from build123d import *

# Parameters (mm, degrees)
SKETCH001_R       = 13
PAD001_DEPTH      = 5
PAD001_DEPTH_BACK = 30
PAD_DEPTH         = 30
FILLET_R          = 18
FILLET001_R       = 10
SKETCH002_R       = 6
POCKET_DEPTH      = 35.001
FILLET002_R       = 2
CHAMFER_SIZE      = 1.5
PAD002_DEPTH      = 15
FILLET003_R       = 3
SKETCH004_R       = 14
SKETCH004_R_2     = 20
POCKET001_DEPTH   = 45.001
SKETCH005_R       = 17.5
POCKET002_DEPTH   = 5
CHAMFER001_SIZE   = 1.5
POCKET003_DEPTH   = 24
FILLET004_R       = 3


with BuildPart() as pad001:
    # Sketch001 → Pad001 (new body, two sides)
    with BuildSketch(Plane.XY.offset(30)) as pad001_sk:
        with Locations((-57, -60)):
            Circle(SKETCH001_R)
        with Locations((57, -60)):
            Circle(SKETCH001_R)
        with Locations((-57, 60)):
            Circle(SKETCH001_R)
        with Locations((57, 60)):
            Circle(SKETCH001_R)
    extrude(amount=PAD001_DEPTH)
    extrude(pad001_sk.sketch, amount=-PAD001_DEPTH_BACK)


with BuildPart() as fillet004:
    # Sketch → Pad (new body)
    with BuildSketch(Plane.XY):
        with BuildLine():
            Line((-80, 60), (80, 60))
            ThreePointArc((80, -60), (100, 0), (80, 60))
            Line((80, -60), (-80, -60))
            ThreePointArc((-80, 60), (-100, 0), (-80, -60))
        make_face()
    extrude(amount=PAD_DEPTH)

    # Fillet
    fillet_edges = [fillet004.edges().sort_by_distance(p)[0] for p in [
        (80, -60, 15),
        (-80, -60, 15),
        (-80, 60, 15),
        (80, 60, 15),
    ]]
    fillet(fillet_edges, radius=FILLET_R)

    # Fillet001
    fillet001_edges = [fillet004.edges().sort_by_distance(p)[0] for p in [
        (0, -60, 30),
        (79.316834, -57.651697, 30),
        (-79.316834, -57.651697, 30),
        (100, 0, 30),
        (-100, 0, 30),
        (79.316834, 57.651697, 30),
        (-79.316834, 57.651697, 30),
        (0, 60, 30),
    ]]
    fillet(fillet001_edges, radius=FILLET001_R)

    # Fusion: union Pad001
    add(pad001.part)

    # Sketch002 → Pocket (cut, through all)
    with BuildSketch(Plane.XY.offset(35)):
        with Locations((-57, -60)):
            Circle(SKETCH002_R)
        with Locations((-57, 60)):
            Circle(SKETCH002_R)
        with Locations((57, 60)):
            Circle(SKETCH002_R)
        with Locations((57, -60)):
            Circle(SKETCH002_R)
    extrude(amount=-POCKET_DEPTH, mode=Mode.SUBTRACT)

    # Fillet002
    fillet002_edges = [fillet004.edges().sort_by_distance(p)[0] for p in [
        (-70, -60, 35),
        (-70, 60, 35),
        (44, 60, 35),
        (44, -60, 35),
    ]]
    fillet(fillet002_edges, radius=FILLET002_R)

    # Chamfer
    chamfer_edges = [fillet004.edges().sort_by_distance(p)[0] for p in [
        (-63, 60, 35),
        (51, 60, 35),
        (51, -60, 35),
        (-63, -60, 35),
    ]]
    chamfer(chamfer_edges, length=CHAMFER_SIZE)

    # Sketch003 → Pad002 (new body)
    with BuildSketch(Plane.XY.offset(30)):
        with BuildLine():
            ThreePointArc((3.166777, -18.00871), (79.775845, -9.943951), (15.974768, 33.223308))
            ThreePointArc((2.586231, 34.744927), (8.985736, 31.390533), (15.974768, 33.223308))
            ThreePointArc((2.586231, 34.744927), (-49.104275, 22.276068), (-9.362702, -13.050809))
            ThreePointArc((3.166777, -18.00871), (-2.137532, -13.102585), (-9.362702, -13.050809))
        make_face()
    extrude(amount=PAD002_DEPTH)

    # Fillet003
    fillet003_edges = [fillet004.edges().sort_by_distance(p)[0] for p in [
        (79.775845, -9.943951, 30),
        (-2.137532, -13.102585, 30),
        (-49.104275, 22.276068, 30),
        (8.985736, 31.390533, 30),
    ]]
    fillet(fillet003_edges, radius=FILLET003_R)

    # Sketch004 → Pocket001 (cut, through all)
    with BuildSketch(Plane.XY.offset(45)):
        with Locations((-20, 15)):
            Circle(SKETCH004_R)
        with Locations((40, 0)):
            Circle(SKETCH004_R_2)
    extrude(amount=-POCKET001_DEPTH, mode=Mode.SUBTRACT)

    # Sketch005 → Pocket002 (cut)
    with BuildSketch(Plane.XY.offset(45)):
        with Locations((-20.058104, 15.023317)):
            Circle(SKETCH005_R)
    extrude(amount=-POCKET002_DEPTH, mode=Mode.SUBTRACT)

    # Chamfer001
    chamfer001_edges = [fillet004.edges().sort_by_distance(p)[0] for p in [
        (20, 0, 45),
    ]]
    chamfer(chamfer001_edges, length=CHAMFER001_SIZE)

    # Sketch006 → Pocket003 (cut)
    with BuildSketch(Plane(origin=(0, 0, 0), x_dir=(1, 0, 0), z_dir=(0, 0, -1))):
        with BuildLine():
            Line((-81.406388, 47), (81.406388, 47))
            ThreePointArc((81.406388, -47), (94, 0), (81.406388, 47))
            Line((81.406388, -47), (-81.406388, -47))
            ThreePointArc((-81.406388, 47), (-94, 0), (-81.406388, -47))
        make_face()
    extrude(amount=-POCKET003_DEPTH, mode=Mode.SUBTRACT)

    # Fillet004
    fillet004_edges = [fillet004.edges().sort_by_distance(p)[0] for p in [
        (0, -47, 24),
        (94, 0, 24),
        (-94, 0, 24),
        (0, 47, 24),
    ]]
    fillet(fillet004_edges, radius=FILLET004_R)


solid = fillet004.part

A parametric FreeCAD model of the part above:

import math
import FreeCAD as App
import Part
import Sketcher

V = App.Vector


def edges_at(feature, points):
    """Names of the edges that pass closest to the given points."""
    edges = feature.Shape.Edges
    near = lambda p: min(range(len(edges)), key=lambda i: edges[i].distToShape(Part.Vertex(*p))[0])
    return sorted({f"Edge{near(p) + 1}" for p in points})

doc = App.newDocument("Part")
body = doc.addObject("PartDesign::Body", "Body")
body.AllowCompound = True

sketch1 = doc.addObject("Sketcher::SketchObject", "Sketch")
body.addObject(sketch1)
sketch1.AttachmentSupport = (doc.XY_Plane, [""])
sketch1.MapMode = "FlatFace"
sketch1.AttachmentOffset = App.Placement(V(0, 0, 30), App.Rotation())
sketch1.addGeometry(Part.Circle(V(-57, -60, 0), V(0, 0, 1), 13), False)
sketch1.addGeometry(Part.Circle(V(57, -60, 0), V(0, 0, 1), 13), False)
sketch1.addGeometry(Part.Circle(V(-57, 60, 0), V(0, 0, 1), 13), False)
sketch1.addGeometry(Part.Circle(V(57, 60, 0), V(0, 0, 1), 13), False)
sketch1.addConstraint(Sketcher.Constraint("Equal", 0, 1))
sketch1.addConstraint(Sketcher.Constraint("Equal", 1, 2))
sketch1.addConstraint(Sketcher.Constraint("Equal", 2, 3))
sketch1.addConstraint(Sketcher.Constraint("Symmetric", 1, 3, 2, 3, -1, 1))
sketch1.addConstraint(Sketcher.Constraint("Symmetric", 0, 3, 3, 3, -1, 1))
sketch1.addConstraint(Sketcher.Constraint("Symmetric", 0, 3, 1, 3, -2))
sketch1.addConstraint(Sketcher.Constraint("Diameter", 0, 26.0))
sketch1.addConstraint(Sketcher.Constraint("DistanceX", 0, 3, -1, 1, 57.0))
sketch1.addConstraint(Sketcher.Constraint("DistanceY", 0, 3, -1, 1, 60.0))
pad1 = doc.addObject("PartDesign::Pad", "Pad")
body.addObject(pad1)
pad1.Profile = sketch1
pad1.Type = "TwoLengths"
pad1.Length = 5
pad1.Length2 = 30
body2 = doc.addObject("PartDesign::Body", "Body001")

sketch2 = doc.addObject("Sketcher::SketchObject", "Sketch001")
body2.addObject(sketch2)
sketch2.AttachmentSupport = (doc.getObject("XY_Plane001"), [""])
sketch2.MapMode = "FlatFace"
sketch2.addGeometry(Part.LineSegment(V(80, 60, 0), V(-80, 60, 0)), False)
sketch2.addGeometry(Part.ArcOfCircle(Part.Circle(V(0, 0, 0), V(0, 0, 1), 100), math.radians(143.130102), math.radians(216.869898)), False)
sketch2.addGeometry(Part.LineSegment(V(-80, -60, 0), V(80, -60, 0)), False)
sketch2.addGeometry(Part.ArcOfCircle(Part.Circle(V(0, 0, 0), V(0, 0, 1), 100), math.radians(-36.869898), math.radians(36.869898)), False)
sketch2.addConstraint(Sketcher.Constraint("Coincident", 0, 2, 1, 1))
sketch2.addConstraint(Sketcher.Constraint("Coincident", 1, 2, 2, 1))
sketch2.addConstraint(Sketcher.Constraint("Coincident", 2, 2, 3, 1))
sketch2.addConstraint(Sketcher.Constraint("Coincident", 3, 2, 0, 1))
sketch2.addConstraint(Sketcher.Constraint("Horizontal", 0))
sketch2.addConstraint(Sketcher.Constraint("Horizontal", 2))
sketch2.addConstraint(Sketcher.Constraint("Coincident", 1, 3, -1, 1))
sketch2.addConstraint(Sketcher.Constraint("Coincident", 3, 3, -1, 1))
sketch2.addConstraint(Sketcher.Constraint("Equal", 1, 3))
sketch2.addConstraint(Sketcher.Constraint("Vertical", 0, 2, 1, 2))
sketch2.addConstraint(Sketcher.Constraint("Radius", 1, 100.0))
sketch2.addConstraint(Sketcher.Constraint("DistanceX", 0, 2, 0, 1, 160.0))
pad2 = doc.addObject("PartDesign::Pad", "Pad001")
body2.addObject(pad2)
pad2.Profile = sketch2
pad2.Length = 30
doc.recompute()

fillet = doc.addObject("PartDesign::Fillet", "Fillet")
body2.addObject(fillet)
fillet.Base = (pad2, edges_at(pad2, [
    (80, -60, 15),
    (-80, -60, 15),
    (-80, 60, 15),
    (80, 60, 15),
]))
fillet.Radius = 18
doc.recompute()

fillet2 = doc.addObject("PartDesign::Fillet", "Fillet001")
body2.addObject(fillet2)
fillet2.Base = (fillet, edges_at(fillet, [
    (0, -60, 30),
    (79.317, -57.652, 30),
    (-79.317, -57.652, 30),
    (100, 0, 30),
    (-100, 0, 30),
    (79.317, 57.652, 30),
    (-79.317, 57.652, 30),
    (0, 60, 30),
]))
fillet2.Radius = 10
doc.recompute()

boolean = doc.addObject("PartDesign::Boolean", "Boolean")
body2.addObject(boolean)
boolean.Type = "Fuse"
boolean.addObjects([body])

sketch3 = doc.addObject("Sketcher::SketchObject", "Sketch002")
body2.addObject(sketch3)
sketch3.AttachmentSupport = (doc.getObject("XY_Plane001"), [""])
sketch3.MapMode = "FlatFace"
sketch3.AttachmentOffset = App.Placement(V(0, 0, 35), App.Rotation())
sketch3.addGeometry(Part.Circle(V(-57, -60, 0), V(0, 0, 1), 6), False)
sketch3.addGeometry(Part.Circle(V(-57, 60, 0), V(0, 0, 1), 6), False)
sketch3.addGeometry(Part.Circle(V(57, 60, 0), V(0, 0, 1), 6), False)
sketch3.addGeometry(Part.Circle(V(57, -60, 0), V(0, 0, 1), 6), False)
sketch3.addConstraint(Sketcher.Constraint("Equal", 0, 1))
sketch3.addConstraint(Sketcher.Constraint("Equal", 1, 2))
sketch3.addConstraint(Sketcher.Constraint("Equal", 2, 3))
sketch3.addConstraint(Sketcher.Constraint("Symmetric", 0, 3, 2, 3, -1, 1))
sketch3.addConstraint(Sketcher.Constraint("Symmetric", 1, 3, 3, 3, -1, 1))
sketch3.addConstraint(Sketcher.Constraint("Symmetric", 1, 3, 2, 3, -2))
sketch3.addConstraint(Sketcher.Constraint("Diameter", 0, 12.0))
sketch3.addConstraint(Sketcher.Constraint("DistanceX", 0, 3, -1, 1, 57.0))
sketch3.addConstraint(Sketcher.Constraint("DistanceY", 0, 3, -1, 1, 60.0))
pocket1 = doc.addObject("PartDesign::Pocket", "Pocket")
body2.addObject(pocket1)
pocket1.Profile = sketch3
pocket1.Type = "ThroughAll"
doc.recompute()

fillet3 = doc.addObject("PartDesign::Fillet", "Fillet002")
body2.addObject(fillet3)
fillet3.Base = (pocket1, edges_at(pocket1, [
    (-70, -60, 35),
    (-70, 60, 35),
    (44, 60, 35),
    (44, -60, 35),
]))
fillet3.Radius = 2
doc.recompute()

chamfer = doc.addObject("PartDesign::Chamfer", "Chamfer")
body2.addObject(chamfer)
chamfer.Base = (fillet3, edges_at(fillet3, [
    (-63, 60, 35),
    (51, 60, 35),
    (51, -60, 35),
    (-63, -60, 35),
]))
chamfer.Size = 1.5

sketch4 = doc.addObject("Sketcher::SketchObject", "Sketch003")
body2.addObject(sketch4)
sketch4.AttachmentSupport = (doc.getObject("XY_Plane001"), [""])
sketch4.MapMode = "FlatFace"
sketch4.AttachmentOffset = App.Placement(V(0, 0, 30), App.Rotation())
sketch4.addGeometry(Part.ArcOfCircle(Part.Circle(V(40, 0, 0), V(0, 0, 1), 41), math.radians(-153.944802), math.radians(125.872343)), False)
sketch4.addGeometry(Part.ArcOfCircle(Part.Circle(V(10.114976, 41.326571, 0), V(0, 0, 1), 10.000002), math.radians(-138.839978), math.radians(-54.127812)), False)
sketch4.addGeometry(Part.ArcOfCircle(Part.Circle(V(-20, 15, 0), V(0, 0, 1), 30), math.radians(41.160018), math.radians(290.767498)), False)
sketch4.addGeometry(Part.ArcOfCircle(Part.Circle(V(-5.816936, -22.401079, 0), V(0, 0, 1), 10), math.radians(26.055202), math.radians(110.767496)), False)
sketch4.addConstraint(Sketcher.Constraint("Coincident", 0, 2, 1, 2))
sketch4.addConstraint(Sketcher.Constraint("Tangent", 1, 1, 2, 1))
sketch4.addConstraint(Sketcher.Constraint("Tangent", 2, 2, 3, 2))
sketch4.addConstraint(Sketcher.Constraint("Tangent", 3, 1, 0, 1))
sketch4.addConstraint(Sketcher.Constraint("Equal", 1, 3))
sketch4.addConstraint(Sketcher.Constraint("PointOnObject", 0, 3, -1))
sketch4.addConstraint(Sketcher.Constraint("Radius", 0, 41.0))
sketch4.addConstraint(Sketcher.Constraint("Radius", 2, 30.0))
sketch4.addConstraint(Sketcher.Constraint("Radius", 3, 10.0))
sketch4.addConstraint(Sketcher.Constraint("DistanceX", -1, 1, 0, 3, 40.0))
sketch4.addConstraint(Sketcher.Constraint("DistanceX", 2, 3, -1, 1, 20.0))
sketch4.addConstraint(Sketcher.Constraint("DistanceY", -1, 1, 2, 3, 15.0))
sketch4.addConstraint(Sketcher.Constraint("DistanceY", -1, 1, 0, 2, 33.223308))
pad3 = doc.addObject("PartDesign::Pad", "Pad002")
body2.addObject(pad3)
pad3.Profile = sketch4
pad3.Length = 15
doc.recompute()

fillet4 = doc.addObject("PartDesign::Fillet", "Fillet003")
body2.addObject(fillet4)
fillet4.Base = (pad3, edges_at(pad3, [
    (79.776, -9.944, 30),
    (-2.138, -13.103, 30),
    (-49.104, 22.276, 30),
    (8.986, 31.391, 30),
]))
fillet4.Radius = 3

sketch5 = doc.addObject("Sketcher::SketchObject", "Sketch004")
body2.addObject(sketch5)
sketch5.AttachmentSupport = (doc.getObject("XY_Plane001"), [""])
sketch5.MapMode = "FlatFace"
sketch5.AttachmentOffset = App.Placement(V(0, 0, 45), App.Rotation())
sketch5.addGeometry(Part.Circle(V(-20, 15, 0), V(0, 0, 1), 14), False)
sketch5.addGeometry(Part.Circle(V(40, 0, 0), V(0, 0, 1), 20), False)
sketch5.addConstraint(Sketcher.Constraint("PointOnObject", 1, 3, -1))
sketch5.addConstraint(Sketcher.Constraint("Diameter", 0, 28.0))
sketch5.addConstraint(Sketcher.Constraint("Diameter", 1, 40.0))
sketch5.addConstraint(Sketcher.Constraint("DistanceX", 0, 3, -1, 1, 20.0))
sketch5.addConstraint(Sketcher.Constraint("DistanceY", -1, 1, 0, 3, 15.0))
sketch5.addConstraint(Sketcher.Constraint("DistanceX", -1, 1, 1, 3, 40.0))
pocket2 = doc.addObject("PartDesign::Pocket", "Pocket001")
body2.addObject(pocket2)
pocket2.Profile = sketch5
pocket2.Type = "ThroughAll"

sketch6 = doc.addObject("Sketcher::SketchObject", "Sketch005")
body2.addObject(sketch6)
sketch6.AttachmentSupport = (doc.getObject("XY_Plane001"), [""])
sketch6.MapMode = "FlatFace"
sketch6.AttachmentOffset = App.Placement(V(0, 0, 45), App.Rotation())
sketch6.addGeometry(Part.Circle(V(-20.058104, 15.023317, 0), V(0, 0, 1), 17.5), False)
sketch6.addConstraint(Sketcher.Constraint("Diameter", 0, 35.0))
sketch6.addConstraint(Sketcher.Constraint("DistanceX", 0, 3, -1, 1, 20.058104))
sketch6.addConstraint(Sketcher.Constraint("DistanceY", -1, 1, 0, 3, 15.023317))
pocket3 = doc.addObject("PartDesign::Pocket", "Pocket002")
body2.addObject(pocket3)
pocket3.Profile = sketch6
pocket3.Length = 5
doc.recompute()

chamfer2 = doc.addObject("PartDesign::Chamfer", "Chamfer001")
body2.addObject(chamfer2)
chamfer2.Base = (pocket3, edges_at(pocket3, [(20, 0, 45)]))
chamfer2.Size = 1.5

sketch7 = doc.addObject("Sketcher::SketchObject", "Sketch006")
body2.addObject(sketch7)
sketch7.AttachmentSupport = (doc.getObject("XY_Plane001"), [""])
sketch7.MapMode = "FlatFace"
sketch7.addGeometry(Part.LineSegment(V(81.406388, -47, 0), V(-81.406388, -47, 0)), False)
sketch7.addGeometry(Part.ArcOfCircle(Part.Circle(V(0, 0, 0), V(0, 0, 1), 94), math.radians(150), math.radians(210)), False)
sketch7.addGeometry(Part.LineSegment(V(-81.406388, 47, 0), V(81.406388, 47, 0)), False)
sketch7.addGeometry(Part.ArcOfCircle(Part.Circle(V(0, 0, 0), V(0, 0, 1), 94), math.radians(-30), math.radians(30)), False)
sketch7.addConstraint(Sketcher.Constraint("Coincident", 0, 2, 1, 2))
sketch7.addConstraint(Sketcher.Constraint("Coincident", 1, 1, 2, 1))
sketch7.addConstraint(Sketcher.Constraint("Coincident", 2, 2, 3, 2))
sketch7.addConstraint(Sketcher.Constraint("Coincident", 3, 1, 0, 1))
sketch7.addConstraint(Sketcher.Constraint("Horizontal", 0))
sketch7.addConstraint(Sketcher.Constraint("Horizontal", 2))
sketch7.addConstraint(Sketcher.Constraint("Coincident", 1, 3, -1, 1))
sketch7.addConstraint(Sketcher.Constraint("Coincident", 3, 3, -1, 1))
sketch7.addConstraint(Sketcher.Constraint("Equal", 1, 3))
sketch7.addConstraint(Sketcher.Constraint("Vertical", 0, 2, 1, 1))
sketch7.addConstraint(Sketcher.Constraint("Radius", 1, 94.0))
sketch7.addConstraint(Sketcher.Constraint("DistanceY", 0, 2, -1, 1, 47.0))
pocket4 = doc.addObject("PartDesign::Pocket", "Pocket003")
body2.addObject(pocket4)
pocket4.Profile = sketch7
pocket4.Length = 24
pocket4.Reversed = True
doc.recompute()

fillet5 = doc.addObject("PartDesign::Fillet", "Fillet004")
body2.addObject(fillet5)
fillet5.Base = (pocket4, edges_at(pocket4, [
    (0, -47, 24),
    (94, 0, 24),
    (-94, 0, 24),
    (0, 47, 24),
]))
fillet5.Radius = 3

doc.recompute()
